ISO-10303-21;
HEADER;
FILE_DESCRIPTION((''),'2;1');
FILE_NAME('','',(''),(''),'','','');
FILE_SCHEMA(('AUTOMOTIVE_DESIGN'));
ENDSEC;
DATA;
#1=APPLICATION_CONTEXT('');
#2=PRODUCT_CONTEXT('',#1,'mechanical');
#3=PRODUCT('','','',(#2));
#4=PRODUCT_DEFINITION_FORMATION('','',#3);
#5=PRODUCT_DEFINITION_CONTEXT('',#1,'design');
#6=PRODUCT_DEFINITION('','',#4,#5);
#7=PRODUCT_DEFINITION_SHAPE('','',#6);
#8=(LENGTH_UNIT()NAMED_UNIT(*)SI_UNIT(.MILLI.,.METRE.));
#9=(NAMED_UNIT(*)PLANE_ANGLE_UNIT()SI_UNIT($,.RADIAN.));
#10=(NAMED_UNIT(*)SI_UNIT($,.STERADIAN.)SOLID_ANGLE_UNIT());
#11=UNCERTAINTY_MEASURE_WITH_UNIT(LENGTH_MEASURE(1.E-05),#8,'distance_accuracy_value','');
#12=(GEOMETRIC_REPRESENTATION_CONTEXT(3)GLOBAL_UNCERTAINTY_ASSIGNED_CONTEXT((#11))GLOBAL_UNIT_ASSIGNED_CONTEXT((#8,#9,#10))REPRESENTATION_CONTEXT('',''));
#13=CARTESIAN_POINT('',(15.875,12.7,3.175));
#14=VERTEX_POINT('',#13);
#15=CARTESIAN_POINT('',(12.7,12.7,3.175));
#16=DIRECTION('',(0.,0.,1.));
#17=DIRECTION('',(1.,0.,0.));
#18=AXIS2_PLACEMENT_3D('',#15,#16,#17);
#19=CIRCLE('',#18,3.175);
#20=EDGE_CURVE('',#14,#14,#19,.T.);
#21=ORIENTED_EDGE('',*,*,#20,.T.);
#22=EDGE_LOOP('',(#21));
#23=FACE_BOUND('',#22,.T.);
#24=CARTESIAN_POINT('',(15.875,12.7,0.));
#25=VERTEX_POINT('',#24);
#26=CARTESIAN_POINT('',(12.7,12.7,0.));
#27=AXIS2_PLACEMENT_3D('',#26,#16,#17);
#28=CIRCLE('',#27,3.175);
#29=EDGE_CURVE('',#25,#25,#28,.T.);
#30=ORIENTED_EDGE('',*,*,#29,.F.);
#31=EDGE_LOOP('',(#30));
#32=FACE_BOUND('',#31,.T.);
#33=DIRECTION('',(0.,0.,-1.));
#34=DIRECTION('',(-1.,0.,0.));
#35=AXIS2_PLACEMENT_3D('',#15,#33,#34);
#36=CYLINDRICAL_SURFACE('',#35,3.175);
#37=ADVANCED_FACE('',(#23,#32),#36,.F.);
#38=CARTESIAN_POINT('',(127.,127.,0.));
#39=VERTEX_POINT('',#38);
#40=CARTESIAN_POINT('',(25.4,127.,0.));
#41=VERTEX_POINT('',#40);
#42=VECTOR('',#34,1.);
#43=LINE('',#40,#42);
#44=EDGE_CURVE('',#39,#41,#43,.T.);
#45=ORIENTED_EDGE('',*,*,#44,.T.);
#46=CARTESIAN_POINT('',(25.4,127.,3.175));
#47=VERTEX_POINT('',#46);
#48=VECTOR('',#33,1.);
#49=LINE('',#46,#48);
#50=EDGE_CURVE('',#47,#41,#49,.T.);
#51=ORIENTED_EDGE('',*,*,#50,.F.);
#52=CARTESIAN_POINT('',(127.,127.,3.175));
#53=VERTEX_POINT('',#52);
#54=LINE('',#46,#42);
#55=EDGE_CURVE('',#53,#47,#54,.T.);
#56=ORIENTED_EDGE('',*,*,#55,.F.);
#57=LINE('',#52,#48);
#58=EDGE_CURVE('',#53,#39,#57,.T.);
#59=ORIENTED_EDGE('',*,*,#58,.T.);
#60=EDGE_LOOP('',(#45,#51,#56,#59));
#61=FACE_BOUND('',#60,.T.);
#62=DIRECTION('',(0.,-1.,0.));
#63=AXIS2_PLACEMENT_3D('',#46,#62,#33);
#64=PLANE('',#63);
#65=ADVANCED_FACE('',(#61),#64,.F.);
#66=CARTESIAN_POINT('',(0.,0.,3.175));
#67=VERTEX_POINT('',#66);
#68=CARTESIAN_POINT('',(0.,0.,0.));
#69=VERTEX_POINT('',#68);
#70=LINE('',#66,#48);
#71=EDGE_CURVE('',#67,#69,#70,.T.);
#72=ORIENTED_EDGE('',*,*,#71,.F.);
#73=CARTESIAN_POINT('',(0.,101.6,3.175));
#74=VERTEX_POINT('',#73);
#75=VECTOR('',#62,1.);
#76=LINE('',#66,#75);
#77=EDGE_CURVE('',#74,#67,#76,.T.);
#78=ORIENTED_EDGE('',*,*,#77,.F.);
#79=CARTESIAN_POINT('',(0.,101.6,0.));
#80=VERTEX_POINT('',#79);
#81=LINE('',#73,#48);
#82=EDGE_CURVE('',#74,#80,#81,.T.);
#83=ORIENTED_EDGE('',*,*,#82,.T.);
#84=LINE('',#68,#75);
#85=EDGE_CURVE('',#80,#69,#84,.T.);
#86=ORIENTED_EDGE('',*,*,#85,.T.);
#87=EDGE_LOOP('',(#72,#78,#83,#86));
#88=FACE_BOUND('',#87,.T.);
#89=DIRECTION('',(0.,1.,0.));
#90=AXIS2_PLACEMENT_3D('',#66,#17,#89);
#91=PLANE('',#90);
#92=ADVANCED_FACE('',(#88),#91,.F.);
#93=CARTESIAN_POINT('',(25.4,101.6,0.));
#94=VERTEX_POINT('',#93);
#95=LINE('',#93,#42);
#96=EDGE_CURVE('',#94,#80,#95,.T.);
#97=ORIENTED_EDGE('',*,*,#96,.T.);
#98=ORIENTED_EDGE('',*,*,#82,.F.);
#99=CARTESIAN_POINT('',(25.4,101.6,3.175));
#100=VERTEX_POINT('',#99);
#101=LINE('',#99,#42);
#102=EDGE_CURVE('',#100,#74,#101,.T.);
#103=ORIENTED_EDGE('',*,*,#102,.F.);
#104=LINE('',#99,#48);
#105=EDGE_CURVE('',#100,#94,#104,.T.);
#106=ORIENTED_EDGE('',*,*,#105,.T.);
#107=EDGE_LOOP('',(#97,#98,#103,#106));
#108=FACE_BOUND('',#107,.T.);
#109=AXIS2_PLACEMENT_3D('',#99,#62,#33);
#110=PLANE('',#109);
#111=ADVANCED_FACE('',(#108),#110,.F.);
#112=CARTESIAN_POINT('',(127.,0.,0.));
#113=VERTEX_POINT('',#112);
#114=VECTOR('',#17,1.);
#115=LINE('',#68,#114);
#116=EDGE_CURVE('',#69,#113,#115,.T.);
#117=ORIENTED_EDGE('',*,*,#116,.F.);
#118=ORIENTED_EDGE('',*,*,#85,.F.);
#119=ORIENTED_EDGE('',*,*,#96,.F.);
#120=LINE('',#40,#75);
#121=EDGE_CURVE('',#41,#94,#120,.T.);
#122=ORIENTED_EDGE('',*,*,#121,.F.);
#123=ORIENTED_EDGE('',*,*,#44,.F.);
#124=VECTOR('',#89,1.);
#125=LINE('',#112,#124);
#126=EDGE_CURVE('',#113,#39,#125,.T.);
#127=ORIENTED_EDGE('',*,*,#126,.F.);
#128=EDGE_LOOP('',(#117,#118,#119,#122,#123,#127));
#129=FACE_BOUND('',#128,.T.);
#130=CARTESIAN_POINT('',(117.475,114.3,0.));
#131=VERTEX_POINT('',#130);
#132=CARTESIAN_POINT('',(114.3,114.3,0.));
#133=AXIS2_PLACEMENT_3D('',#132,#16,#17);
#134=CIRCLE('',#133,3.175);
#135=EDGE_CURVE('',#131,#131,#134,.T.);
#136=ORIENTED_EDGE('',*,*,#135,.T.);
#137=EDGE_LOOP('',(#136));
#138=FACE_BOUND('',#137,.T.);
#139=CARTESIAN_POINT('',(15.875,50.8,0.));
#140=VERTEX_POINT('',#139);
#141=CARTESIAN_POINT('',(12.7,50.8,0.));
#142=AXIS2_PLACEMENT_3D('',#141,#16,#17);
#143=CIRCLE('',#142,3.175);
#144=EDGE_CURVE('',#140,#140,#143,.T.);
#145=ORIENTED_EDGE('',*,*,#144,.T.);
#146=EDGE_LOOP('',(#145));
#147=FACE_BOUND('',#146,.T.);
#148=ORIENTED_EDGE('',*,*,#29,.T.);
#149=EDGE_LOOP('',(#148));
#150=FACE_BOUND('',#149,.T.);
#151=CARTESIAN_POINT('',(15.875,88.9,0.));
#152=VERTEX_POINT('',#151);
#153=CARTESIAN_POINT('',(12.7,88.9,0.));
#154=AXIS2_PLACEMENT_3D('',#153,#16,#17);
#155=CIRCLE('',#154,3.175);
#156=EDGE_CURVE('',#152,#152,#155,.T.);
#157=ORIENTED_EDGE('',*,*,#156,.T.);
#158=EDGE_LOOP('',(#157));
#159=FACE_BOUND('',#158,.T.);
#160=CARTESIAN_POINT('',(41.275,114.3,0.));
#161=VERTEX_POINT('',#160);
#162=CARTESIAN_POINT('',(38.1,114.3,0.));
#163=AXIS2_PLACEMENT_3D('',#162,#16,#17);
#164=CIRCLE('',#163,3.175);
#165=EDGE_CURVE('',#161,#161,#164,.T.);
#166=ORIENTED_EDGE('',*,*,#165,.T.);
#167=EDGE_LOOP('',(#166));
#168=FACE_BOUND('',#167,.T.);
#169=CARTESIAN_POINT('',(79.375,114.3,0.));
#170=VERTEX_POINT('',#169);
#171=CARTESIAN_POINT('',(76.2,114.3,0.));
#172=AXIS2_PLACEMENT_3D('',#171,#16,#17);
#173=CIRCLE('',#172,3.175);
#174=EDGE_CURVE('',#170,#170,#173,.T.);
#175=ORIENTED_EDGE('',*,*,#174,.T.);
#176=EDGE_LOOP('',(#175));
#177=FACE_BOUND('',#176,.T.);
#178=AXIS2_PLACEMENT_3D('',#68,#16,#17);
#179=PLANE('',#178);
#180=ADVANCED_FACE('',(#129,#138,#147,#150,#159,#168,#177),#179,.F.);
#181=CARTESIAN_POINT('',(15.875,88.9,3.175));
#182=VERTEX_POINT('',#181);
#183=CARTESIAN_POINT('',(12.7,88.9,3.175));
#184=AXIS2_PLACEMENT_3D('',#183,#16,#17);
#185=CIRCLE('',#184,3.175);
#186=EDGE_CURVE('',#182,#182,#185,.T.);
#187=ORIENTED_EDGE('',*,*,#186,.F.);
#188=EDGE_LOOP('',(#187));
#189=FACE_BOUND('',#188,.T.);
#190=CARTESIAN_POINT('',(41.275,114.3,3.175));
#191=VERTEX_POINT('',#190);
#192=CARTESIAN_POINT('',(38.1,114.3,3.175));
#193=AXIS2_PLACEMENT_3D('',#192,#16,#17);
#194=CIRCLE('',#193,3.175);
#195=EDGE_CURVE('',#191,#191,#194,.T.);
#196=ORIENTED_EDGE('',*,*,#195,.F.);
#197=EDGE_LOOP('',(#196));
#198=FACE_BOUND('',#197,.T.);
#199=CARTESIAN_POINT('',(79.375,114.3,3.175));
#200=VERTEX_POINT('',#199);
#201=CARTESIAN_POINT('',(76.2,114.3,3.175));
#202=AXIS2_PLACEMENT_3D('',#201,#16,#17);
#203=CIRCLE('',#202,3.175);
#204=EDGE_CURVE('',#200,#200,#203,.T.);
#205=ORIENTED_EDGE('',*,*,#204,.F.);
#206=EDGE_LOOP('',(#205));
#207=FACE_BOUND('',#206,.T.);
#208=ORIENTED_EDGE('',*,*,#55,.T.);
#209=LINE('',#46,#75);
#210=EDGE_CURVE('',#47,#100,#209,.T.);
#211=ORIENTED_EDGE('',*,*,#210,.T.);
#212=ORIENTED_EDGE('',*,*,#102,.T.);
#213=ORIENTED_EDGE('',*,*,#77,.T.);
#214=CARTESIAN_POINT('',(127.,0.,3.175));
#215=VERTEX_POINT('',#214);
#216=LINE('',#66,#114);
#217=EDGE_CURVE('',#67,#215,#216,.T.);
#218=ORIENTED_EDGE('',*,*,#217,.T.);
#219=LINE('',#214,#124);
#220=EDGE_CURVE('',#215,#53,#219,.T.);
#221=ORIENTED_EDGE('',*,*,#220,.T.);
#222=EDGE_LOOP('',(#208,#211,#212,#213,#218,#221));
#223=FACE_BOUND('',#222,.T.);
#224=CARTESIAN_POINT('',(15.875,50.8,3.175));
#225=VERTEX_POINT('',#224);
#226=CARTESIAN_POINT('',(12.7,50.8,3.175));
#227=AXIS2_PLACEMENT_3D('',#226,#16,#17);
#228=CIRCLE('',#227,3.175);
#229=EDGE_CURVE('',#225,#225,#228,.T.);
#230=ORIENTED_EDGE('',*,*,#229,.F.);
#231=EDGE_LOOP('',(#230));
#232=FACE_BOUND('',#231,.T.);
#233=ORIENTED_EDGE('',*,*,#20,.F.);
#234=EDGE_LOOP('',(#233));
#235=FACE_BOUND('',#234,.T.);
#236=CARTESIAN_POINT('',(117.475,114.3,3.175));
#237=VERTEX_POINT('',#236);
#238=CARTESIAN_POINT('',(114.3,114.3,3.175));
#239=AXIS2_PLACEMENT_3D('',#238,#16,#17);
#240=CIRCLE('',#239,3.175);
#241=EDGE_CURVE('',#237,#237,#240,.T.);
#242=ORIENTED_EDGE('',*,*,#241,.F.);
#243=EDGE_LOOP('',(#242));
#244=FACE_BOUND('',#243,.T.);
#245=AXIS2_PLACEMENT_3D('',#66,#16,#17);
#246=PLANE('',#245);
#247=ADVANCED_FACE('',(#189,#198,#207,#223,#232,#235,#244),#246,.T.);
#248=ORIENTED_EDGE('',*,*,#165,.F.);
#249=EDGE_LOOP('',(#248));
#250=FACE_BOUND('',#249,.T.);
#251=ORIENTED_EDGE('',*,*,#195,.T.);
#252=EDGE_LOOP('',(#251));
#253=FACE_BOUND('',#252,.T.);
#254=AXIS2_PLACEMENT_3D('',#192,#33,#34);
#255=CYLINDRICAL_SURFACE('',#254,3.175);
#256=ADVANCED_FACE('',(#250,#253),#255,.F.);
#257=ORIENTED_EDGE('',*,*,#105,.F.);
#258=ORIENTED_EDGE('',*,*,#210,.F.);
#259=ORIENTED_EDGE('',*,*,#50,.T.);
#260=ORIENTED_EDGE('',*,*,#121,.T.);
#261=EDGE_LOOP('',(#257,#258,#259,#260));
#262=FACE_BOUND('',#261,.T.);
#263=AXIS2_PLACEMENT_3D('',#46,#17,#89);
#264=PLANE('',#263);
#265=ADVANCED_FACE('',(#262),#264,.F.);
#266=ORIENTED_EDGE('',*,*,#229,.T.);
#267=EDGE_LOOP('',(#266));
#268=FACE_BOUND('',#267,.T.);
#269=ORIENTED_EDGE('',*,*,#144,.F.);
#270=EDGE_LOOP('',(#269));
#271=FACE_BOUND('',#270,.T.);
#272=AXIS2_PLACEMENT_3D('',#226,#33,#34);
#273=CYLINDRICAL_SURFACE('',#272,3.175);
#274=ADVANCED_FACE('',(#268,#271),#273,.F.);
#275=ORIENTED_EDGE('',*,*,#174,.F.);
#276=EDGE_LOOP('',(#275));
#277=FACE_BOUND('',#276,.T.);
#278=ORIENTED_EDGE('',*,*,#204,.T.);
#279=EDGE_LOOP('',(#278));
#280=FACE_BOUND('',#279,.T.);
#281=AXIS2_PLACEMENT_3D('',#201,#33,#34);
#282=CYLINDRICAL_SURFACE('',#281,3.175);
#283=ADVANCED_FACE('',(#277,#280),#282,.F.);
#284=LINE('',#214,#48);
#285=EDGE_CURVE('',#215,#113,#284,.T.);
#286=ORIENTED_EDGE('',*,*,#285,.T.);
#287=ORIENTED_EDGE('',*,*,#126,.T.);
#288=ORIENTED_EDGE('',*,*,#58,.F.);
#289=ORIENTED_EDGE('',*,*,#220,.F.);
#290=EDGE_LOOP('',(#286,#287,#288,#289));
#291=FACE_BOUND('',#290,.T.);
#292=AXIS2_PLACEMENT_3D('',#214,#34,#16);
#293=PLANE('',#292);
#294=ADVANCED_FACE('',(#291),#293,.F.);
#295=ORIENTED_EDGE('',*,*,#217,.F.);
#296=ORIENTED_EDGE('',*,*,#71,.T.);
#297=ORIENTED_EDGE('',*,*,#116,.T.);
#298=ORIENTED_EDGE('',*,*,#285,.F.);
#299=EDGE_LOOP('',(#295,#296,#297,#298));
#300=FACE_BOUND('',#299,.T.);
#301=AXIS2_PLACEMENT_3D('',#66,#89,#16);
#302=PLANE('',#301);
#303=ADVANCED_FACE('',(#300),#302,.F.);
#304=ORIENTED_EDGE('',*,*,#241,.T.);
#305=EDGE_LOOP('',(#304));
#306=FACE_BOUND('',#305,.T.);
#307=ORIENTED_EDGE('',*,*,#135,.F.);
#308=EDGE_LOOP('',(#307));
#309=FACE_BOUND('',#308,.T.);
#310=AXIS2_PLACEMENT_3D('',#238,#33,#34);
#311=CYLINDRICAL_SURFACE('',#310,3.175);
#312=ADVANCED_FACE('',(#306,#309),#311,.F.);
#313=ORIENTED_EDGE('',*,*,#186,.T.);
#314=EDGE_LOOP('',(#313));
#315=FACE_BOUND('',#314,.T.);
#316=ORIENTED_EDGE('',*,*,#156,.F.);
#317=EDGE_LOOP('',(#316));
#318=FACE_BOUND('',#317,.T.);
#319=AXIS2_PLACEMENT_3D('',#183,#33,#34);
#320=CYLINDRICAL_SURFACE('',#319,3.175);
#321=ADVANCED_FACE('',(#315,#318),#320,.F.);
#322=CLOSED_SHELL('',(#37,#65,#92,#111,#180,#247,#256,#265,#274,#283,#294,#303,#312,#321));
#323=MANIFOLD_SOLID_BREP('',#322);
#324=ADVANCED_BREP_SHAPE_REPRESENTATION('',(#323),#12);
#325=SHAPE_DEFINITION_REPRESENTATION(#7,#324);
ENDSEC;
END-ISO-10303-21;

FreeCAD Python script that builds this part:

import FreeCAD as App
import Part
import Sketcher
Q = App.Units.Quantity


def add_polygon(sketch, points):
    """Adds a closed chain of lines whose ends are joined by coincident constraints."""
    first, n = sketch.GeometryCount, len(points)
    for a, b in zip(points, points[1:] + points[:1]):
        sketch.addGeometry(Part.LineSegment(App.Vector(*a, 0), App.Vector(*b, 0)), False)
    for i in range(n):
        sketch.addConstraint(Sketcher.Constraint("Coincident", first + i, 2, first + (i + 1) % n, 1))

doc = App.newDocument("Part")
body = doc.addObject("PartDesign::Body", "Body")

# Sketch on XY plane
sketch1 = doc.addObject("Sketcher::SketchObject", "Sketch")
body.addObject(sketch1)
sketch1.AttachmentSupport = (doc.XY_Plane, [""])
sketch1.MapMode = "FlatFace"
add_polygon(sketch1, [(0, 0), (127, 0), (127, 127), (25.4, 127), (25.4, 101.6), (0, 101.6)])  # lines 0-5
sketch1.addGeometry(Part.Circle(App.Vector(12.7, 12.7, 0), App.Vector(0, 0, 1), 3.2), False)  # 6
sketch1.addGeometry(Part.Circle(App.Vector(12.7, 50.8, 0), App.Vector(0, 0, 1), 3.2), False)  # 7
sketch1.addGeometry(Part.Circle(App.Vector(12.7, 88.9, 0), App.Vector(0, 0, 1), 3.2), False)  # 8
sketch1.addGeometry(Part.Circle(App.Vector(38.1, 114.3, 0), App.Vector(0, 0, 1), 3.2), False)  # 9
sketch1.addGeometry(Part.Circle(App.Vector(76.2, 114.3, 0), App.Vector(0, 0, 1), 3.2), False)  # 10
sketch1.addGeometry(Part.Circle(App.Vector(114.3, 114.3, 0), App.Vector(0, 0, 1), 3.2), False)  # 11
sketch1.addConstraint([
    Sketcher.Constraint("Horizontal", 0),
    Sketcher.Constraint("Vertical", 1),
    Sketcher.Constraint("Horizontal", 2),
    Sketcher.Constraint("Vertical", 3),
    Sketcher.Constraint("Horizontal", 4),
    Sketcher.Constraint("Vertical", 5),
    Sketcher.Constraint("Coincident", 5, 2, -1, 1),
    Sketcher.Constraint("Equal", 6, 7),
    Sketcher.Constraint("Equal", 7, 8),
    Sketcher.Constraint("Equal", 8, 9),
    Sketcher.Constraint("Equal", 9, 10),
    Sketcher.Constraint("Equal", 10, 11),
    Sketcher.Constraint("Horizontal", 9, 3, 10, 3),
    Sketcher.Constraint("Horizontal", 10, 3, 11, 3),
    Sketcher.Constraint("Vertical", 6, 3, 7, 3),
    Sketcher.Constraint("Vertical", 7, 3, 8, 3),
    Sketcher.Constraint("Equal", 0, 1),
    Sketcher.Constraint("Equal", 4, 3),
    Sketcher.Constraint("Diameter", 6, Q("0.25 in")),
    Sketcher.Constraint("DistanceX", 0, 1, 0, 2, Q("5 in")),
    Sketcher.Constraint("DistanceX", 2, 2, 2, 1, Q("4 in")),
    Sketcher.Constraint("DistanceY", -1, 1, 7, 3, Q("2 in")),
    Sketcher.Constraint("DistanceX", -1, 1, 10, 3, Q("3 in")),
    Sketcher.Constraint("DistanceY", 6, 3, 8, 3, Q("3 in")),
    Sketcher.Constraint("DistanceX", 8, 3, 9, 3, Q("1 in")),
    Sketcher.Constraint("DistanceY", 8, 3, 9, 3, Q("1 in")),
    Sketcher.Constraint("DistanceX", 9, 3, 11, 3, Q("3 in")),
    Sketcher.Constraint("DistanceX", -1, 1, 6, 3, Q("0.5 in")),
    Sketcher.Constraint("DistanceY", -1, 1, 6, 3, Q("0.5 in")),
])
pad1 = doc.addObject("PartDesign::Pad", "Pad")
body.addObject(pad1)
pad1.Profile = sketch1
pad1.Length = Q("0.125 in")

doc.recompute()
